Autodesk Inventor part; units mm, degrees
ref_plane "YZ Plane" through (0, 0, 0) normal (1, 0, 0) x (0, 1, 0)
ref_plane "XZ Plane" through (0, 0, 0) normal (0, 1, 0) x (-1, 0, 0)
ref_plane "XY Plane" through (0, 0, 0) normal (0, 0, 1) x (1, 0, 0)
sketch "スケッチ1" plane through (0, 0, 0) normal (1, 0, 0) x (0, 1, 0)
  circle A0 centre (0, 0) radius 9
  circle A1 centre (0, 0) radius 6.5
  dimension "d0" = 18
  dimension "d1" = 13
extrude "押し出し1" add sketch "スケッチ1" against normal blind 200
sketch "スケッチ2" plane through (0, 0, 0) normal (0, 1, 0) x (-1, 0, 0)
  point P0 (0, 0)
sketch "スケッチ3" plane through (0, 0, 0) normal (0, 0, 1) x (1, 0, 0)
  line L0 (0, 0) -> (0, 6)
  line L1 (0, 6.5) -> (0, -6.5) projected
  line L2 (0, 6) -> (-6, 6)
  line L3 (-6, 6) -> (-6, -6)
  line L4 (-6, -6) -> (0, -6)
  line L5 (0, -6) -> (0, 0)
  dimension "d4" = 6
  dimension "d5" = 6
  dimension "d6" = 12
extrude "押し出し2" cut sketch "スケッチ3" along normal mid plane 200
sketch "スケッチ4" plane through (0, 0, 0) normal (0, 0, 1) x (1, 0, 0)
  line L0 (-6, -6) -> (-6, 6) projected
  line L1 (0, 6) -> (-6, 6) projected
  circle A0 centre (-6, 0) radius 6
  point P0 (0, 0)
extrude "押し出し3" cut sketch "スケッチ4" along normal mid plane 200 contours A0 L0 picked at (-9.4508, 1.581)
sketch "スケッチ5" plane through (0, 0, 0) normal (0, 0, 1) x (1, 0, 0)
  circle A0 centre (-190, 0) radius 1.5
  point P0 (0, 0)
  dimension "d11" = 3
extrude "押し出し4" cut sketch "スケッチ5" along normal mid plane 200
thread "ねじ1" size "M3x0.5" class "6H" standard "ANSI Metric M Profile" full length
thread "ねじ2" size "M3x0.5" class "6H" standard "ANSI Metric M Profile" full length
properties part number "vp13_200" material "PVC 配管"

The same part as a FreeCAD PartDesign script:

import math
import FreeCAD as App
import Part
import Sketcher

V = App.Vector
Q = App.Units.Quantity

doc = App.newDocument("Part")
params = doc.addObject("Spreadsheet::Sheet", "Params")
for row, (alias, value) in enumerate([
    ("sketch1_diameter", "18 mm"),
    ("sketch1_diameter2", "13 mm"),
    ("pad1_length", "200 mm"),
    ("sketch2_width", "6 mm"),
    ("sketch2_height", "12 mm"),
    ("pocket1_length", "200 mm"),
    ("sketch3_radius", "6 mm"),
    ("pocket2_length", "200 mm"),
    ("sketch4_diameter", "3 mm"),
    ("pocket3_length", "200 mm"),
], start=1):
    params.set(f"A{row}", alias)
    params.set(f"B{row}", "=" + value)
    params.setAlias(f"B{row}", alias)

body = doc.addObject("PartDesign::Body", "Body")

# Sketch on YZ plane
sketch1 = body.newObject("Sketcher::SketchObject", "Sketch")
sketch1.AttachmentSupport = (doc.getObject("YZ_Plane"), [""])
sketch1.MapMode = "FlatFace"
sketch1.addGeometry(Part.Circle(V(0, 0, 0), V(0, 0, 1), 9), False)
sketch1.addGeometry(Part.Circle(V(0, 0, 0), V(0, 0, 1), 6), False)
sketch1.addConstraint(Sketcher.Constraint("Coincident", 0, 3, -1, 1))
sketch1.addConstraint(Sketcher.Constraint("Coincident", 1, 3, -1, 1))
sketch1.addConstraint(Sketcher.Constraint("Diameter", 0, Q("18 mm")))
sketch1.addConstraint(Sketcher.Constraint("Diameter", 1, Q("13 mm")))
sketch1.setExpression("Constraints[2]", "Params.sketch1_diameter")
sketch1.setExpression("Constraints[3]", "Params.sketch1_diameter2")
pad1 = body.newObject("PartDesign::Pad", "Pad")
pad1.Profile = sketch1
pad1.setExpression("Length", "Params.pad1_length")
pad1.Reversed = True

# Sketch on XY plane
sketch2 = body.newObject("Sketcher::SketchObject", "Sketch001")
sketch2.AttachmentSupport = (doc.getObject("XY_Plane"), [""])
sketch2.MapMode = "FlatFace"
sketch2.addGeometry(Part.LineSegment(V(0, -6, 0), V(0, 6, 0)), False)
sketch2.addGeometry(Part.LineSegment(V(0, 6, 0), V(-6, 6, 0)), False)
sketch2.addGeometry(Part.LineSegment(V(-6, 6, 0), V(-6, -6, 0)), False)
sketch2.addGeometry(Part.LineSegment(V(-6, -6, 0), V(0, -6, 0)), False)
sketch2.addConstraint(Sketcher.Constraint("Coincident", 0, 2, 1, 1))
sketch2.addConstraint(Sketcher.Constraint("Coincident", 1, 2, 2, 1))
sketch2.addConstraint(Sketcher.Constraint("Coincident", 2, 2, 3, 1))
sketch2.addConstraint(Sketcher.Constraint("Coincident", 3, 2, 0, 1))
sketch2.addConstraint(Sketcher.Constraint("Vertical", 0))
sketch2.addConstraint(Sketcher.Constraint("Horizontal", 1))
sketch2.addConstraint(Sketcher.Constraint("Vertical", 2))
sketch2.addConstraint(Sketcher.Constraint("Horizontal", 3))
sketch2.addConstraint(Sketcher.Constraint("Symmetric", 0, 2, 3, 2, -1, 1))
sketch2.addConstraint(Sketcher.Constraint("DistanceX", 1, 2, 1, 1, Q("6 mm")))
sketch2.addConstraint(Sketcher.Constraint("DistanceY", 0, 1, 0, 2, Q("12 mm")))
sketch2.setExpression("Constraints[9]", "Params.sketch2_width")
sketch2.setExpression("Constraints[10]", "Params.sketch2_height")
pocket1 = body.newObject("PartDesign::Pocket", "Pocket")
pocket1.Profile = sketch2
pocket1.setExpression("Length", "Params.pocket1_length")
pocket1.Midplane = True

# Sketch on XY plane
sketch3 = body.newObject("Sketcher::SketchObject", "Sketch002")
sketch3.AttachmentSupport = (doc.getObject("XY_Plane"), [""])
sketch3.MapMode = "FlatFace"
sketch3.addGeometry(Part.ArcOfCircle(Part.Circle(V(-6, 0, 0), V(0, 0, 1), 6), math.radians(90), math.radians(270)), False)
sketch3.addGeometry(Part.LineSegment(V(-6, -6, 0), V(-6, 6, 0)), False)
sketch3.addConstraint(Sketcher.Constraint("Coincident", 0, 1, 1, 2))
sketch3.addConstraint(Sketcher.Constraint("Coincident", 1, 1, 0, 2))
sketch3.addConstraint(Sketcher.Constraint("Vertical", 1))
sketch3.addConstraint(Sketcher.Constraint("PointOnObject", 0, 3, -1))
sketch3.addConstraint(Sketcher.Constraint("Radius", 0, Q("6 mm")))
sketch3.addConstraint(Sketcher.Constraint("DistanceX", 0, 3, -1, 1, Q("6 mm")))
sketch3.addConstraint(Sketcher.Constraint("DistanceX", 0, 1, -1, 1, Q("6 mm")))
sketch3.setExpression("Constraints[4]", "Params.sketch3_radius")
pocket2 = body.newObject("PartDesign::Pocket", "Pocket001")
pocket2.Profile = sketch3
pocket2.setExpression("Length", "Params.pocket2_length")
pocket2.Midplane = True

# Sketch on XY plane
sketch4 = body.newObject("Sketcher::SketchObject", "Sketch003")
sketch4.AttachmentSupport = (doc.getObject("XY_Plane"), [""])
sketch4.MapMode = "FlatFace"
sketch4.addGeometry(Part.Circle(V(-190, 0, 0), V(0, 0, 1), 1.5), False)
sketch4.addConstraint(Sketcher.Constraint("PointOnObject", 0, 3, -1))
sketch4.addConstraint(Sketcher.Constraint("Diameter", 0, Q("3 mm")))
sketch4.addConstraint(Sketcher.Constraint("DistanceX", 0, 3, -1, 1, Q("190 mm")))
sketch4.setExpression("Constraints[1]", "Params.sketch4_diameter")
pocket3 = body.newObject("PartDesign::Pocket", "Pocket002")
pocket3.Profile = sketch4
pocket3.setExpression("Length", "Params.pocket3_length")
pocket3.Midplane = True

doc.recompute()
